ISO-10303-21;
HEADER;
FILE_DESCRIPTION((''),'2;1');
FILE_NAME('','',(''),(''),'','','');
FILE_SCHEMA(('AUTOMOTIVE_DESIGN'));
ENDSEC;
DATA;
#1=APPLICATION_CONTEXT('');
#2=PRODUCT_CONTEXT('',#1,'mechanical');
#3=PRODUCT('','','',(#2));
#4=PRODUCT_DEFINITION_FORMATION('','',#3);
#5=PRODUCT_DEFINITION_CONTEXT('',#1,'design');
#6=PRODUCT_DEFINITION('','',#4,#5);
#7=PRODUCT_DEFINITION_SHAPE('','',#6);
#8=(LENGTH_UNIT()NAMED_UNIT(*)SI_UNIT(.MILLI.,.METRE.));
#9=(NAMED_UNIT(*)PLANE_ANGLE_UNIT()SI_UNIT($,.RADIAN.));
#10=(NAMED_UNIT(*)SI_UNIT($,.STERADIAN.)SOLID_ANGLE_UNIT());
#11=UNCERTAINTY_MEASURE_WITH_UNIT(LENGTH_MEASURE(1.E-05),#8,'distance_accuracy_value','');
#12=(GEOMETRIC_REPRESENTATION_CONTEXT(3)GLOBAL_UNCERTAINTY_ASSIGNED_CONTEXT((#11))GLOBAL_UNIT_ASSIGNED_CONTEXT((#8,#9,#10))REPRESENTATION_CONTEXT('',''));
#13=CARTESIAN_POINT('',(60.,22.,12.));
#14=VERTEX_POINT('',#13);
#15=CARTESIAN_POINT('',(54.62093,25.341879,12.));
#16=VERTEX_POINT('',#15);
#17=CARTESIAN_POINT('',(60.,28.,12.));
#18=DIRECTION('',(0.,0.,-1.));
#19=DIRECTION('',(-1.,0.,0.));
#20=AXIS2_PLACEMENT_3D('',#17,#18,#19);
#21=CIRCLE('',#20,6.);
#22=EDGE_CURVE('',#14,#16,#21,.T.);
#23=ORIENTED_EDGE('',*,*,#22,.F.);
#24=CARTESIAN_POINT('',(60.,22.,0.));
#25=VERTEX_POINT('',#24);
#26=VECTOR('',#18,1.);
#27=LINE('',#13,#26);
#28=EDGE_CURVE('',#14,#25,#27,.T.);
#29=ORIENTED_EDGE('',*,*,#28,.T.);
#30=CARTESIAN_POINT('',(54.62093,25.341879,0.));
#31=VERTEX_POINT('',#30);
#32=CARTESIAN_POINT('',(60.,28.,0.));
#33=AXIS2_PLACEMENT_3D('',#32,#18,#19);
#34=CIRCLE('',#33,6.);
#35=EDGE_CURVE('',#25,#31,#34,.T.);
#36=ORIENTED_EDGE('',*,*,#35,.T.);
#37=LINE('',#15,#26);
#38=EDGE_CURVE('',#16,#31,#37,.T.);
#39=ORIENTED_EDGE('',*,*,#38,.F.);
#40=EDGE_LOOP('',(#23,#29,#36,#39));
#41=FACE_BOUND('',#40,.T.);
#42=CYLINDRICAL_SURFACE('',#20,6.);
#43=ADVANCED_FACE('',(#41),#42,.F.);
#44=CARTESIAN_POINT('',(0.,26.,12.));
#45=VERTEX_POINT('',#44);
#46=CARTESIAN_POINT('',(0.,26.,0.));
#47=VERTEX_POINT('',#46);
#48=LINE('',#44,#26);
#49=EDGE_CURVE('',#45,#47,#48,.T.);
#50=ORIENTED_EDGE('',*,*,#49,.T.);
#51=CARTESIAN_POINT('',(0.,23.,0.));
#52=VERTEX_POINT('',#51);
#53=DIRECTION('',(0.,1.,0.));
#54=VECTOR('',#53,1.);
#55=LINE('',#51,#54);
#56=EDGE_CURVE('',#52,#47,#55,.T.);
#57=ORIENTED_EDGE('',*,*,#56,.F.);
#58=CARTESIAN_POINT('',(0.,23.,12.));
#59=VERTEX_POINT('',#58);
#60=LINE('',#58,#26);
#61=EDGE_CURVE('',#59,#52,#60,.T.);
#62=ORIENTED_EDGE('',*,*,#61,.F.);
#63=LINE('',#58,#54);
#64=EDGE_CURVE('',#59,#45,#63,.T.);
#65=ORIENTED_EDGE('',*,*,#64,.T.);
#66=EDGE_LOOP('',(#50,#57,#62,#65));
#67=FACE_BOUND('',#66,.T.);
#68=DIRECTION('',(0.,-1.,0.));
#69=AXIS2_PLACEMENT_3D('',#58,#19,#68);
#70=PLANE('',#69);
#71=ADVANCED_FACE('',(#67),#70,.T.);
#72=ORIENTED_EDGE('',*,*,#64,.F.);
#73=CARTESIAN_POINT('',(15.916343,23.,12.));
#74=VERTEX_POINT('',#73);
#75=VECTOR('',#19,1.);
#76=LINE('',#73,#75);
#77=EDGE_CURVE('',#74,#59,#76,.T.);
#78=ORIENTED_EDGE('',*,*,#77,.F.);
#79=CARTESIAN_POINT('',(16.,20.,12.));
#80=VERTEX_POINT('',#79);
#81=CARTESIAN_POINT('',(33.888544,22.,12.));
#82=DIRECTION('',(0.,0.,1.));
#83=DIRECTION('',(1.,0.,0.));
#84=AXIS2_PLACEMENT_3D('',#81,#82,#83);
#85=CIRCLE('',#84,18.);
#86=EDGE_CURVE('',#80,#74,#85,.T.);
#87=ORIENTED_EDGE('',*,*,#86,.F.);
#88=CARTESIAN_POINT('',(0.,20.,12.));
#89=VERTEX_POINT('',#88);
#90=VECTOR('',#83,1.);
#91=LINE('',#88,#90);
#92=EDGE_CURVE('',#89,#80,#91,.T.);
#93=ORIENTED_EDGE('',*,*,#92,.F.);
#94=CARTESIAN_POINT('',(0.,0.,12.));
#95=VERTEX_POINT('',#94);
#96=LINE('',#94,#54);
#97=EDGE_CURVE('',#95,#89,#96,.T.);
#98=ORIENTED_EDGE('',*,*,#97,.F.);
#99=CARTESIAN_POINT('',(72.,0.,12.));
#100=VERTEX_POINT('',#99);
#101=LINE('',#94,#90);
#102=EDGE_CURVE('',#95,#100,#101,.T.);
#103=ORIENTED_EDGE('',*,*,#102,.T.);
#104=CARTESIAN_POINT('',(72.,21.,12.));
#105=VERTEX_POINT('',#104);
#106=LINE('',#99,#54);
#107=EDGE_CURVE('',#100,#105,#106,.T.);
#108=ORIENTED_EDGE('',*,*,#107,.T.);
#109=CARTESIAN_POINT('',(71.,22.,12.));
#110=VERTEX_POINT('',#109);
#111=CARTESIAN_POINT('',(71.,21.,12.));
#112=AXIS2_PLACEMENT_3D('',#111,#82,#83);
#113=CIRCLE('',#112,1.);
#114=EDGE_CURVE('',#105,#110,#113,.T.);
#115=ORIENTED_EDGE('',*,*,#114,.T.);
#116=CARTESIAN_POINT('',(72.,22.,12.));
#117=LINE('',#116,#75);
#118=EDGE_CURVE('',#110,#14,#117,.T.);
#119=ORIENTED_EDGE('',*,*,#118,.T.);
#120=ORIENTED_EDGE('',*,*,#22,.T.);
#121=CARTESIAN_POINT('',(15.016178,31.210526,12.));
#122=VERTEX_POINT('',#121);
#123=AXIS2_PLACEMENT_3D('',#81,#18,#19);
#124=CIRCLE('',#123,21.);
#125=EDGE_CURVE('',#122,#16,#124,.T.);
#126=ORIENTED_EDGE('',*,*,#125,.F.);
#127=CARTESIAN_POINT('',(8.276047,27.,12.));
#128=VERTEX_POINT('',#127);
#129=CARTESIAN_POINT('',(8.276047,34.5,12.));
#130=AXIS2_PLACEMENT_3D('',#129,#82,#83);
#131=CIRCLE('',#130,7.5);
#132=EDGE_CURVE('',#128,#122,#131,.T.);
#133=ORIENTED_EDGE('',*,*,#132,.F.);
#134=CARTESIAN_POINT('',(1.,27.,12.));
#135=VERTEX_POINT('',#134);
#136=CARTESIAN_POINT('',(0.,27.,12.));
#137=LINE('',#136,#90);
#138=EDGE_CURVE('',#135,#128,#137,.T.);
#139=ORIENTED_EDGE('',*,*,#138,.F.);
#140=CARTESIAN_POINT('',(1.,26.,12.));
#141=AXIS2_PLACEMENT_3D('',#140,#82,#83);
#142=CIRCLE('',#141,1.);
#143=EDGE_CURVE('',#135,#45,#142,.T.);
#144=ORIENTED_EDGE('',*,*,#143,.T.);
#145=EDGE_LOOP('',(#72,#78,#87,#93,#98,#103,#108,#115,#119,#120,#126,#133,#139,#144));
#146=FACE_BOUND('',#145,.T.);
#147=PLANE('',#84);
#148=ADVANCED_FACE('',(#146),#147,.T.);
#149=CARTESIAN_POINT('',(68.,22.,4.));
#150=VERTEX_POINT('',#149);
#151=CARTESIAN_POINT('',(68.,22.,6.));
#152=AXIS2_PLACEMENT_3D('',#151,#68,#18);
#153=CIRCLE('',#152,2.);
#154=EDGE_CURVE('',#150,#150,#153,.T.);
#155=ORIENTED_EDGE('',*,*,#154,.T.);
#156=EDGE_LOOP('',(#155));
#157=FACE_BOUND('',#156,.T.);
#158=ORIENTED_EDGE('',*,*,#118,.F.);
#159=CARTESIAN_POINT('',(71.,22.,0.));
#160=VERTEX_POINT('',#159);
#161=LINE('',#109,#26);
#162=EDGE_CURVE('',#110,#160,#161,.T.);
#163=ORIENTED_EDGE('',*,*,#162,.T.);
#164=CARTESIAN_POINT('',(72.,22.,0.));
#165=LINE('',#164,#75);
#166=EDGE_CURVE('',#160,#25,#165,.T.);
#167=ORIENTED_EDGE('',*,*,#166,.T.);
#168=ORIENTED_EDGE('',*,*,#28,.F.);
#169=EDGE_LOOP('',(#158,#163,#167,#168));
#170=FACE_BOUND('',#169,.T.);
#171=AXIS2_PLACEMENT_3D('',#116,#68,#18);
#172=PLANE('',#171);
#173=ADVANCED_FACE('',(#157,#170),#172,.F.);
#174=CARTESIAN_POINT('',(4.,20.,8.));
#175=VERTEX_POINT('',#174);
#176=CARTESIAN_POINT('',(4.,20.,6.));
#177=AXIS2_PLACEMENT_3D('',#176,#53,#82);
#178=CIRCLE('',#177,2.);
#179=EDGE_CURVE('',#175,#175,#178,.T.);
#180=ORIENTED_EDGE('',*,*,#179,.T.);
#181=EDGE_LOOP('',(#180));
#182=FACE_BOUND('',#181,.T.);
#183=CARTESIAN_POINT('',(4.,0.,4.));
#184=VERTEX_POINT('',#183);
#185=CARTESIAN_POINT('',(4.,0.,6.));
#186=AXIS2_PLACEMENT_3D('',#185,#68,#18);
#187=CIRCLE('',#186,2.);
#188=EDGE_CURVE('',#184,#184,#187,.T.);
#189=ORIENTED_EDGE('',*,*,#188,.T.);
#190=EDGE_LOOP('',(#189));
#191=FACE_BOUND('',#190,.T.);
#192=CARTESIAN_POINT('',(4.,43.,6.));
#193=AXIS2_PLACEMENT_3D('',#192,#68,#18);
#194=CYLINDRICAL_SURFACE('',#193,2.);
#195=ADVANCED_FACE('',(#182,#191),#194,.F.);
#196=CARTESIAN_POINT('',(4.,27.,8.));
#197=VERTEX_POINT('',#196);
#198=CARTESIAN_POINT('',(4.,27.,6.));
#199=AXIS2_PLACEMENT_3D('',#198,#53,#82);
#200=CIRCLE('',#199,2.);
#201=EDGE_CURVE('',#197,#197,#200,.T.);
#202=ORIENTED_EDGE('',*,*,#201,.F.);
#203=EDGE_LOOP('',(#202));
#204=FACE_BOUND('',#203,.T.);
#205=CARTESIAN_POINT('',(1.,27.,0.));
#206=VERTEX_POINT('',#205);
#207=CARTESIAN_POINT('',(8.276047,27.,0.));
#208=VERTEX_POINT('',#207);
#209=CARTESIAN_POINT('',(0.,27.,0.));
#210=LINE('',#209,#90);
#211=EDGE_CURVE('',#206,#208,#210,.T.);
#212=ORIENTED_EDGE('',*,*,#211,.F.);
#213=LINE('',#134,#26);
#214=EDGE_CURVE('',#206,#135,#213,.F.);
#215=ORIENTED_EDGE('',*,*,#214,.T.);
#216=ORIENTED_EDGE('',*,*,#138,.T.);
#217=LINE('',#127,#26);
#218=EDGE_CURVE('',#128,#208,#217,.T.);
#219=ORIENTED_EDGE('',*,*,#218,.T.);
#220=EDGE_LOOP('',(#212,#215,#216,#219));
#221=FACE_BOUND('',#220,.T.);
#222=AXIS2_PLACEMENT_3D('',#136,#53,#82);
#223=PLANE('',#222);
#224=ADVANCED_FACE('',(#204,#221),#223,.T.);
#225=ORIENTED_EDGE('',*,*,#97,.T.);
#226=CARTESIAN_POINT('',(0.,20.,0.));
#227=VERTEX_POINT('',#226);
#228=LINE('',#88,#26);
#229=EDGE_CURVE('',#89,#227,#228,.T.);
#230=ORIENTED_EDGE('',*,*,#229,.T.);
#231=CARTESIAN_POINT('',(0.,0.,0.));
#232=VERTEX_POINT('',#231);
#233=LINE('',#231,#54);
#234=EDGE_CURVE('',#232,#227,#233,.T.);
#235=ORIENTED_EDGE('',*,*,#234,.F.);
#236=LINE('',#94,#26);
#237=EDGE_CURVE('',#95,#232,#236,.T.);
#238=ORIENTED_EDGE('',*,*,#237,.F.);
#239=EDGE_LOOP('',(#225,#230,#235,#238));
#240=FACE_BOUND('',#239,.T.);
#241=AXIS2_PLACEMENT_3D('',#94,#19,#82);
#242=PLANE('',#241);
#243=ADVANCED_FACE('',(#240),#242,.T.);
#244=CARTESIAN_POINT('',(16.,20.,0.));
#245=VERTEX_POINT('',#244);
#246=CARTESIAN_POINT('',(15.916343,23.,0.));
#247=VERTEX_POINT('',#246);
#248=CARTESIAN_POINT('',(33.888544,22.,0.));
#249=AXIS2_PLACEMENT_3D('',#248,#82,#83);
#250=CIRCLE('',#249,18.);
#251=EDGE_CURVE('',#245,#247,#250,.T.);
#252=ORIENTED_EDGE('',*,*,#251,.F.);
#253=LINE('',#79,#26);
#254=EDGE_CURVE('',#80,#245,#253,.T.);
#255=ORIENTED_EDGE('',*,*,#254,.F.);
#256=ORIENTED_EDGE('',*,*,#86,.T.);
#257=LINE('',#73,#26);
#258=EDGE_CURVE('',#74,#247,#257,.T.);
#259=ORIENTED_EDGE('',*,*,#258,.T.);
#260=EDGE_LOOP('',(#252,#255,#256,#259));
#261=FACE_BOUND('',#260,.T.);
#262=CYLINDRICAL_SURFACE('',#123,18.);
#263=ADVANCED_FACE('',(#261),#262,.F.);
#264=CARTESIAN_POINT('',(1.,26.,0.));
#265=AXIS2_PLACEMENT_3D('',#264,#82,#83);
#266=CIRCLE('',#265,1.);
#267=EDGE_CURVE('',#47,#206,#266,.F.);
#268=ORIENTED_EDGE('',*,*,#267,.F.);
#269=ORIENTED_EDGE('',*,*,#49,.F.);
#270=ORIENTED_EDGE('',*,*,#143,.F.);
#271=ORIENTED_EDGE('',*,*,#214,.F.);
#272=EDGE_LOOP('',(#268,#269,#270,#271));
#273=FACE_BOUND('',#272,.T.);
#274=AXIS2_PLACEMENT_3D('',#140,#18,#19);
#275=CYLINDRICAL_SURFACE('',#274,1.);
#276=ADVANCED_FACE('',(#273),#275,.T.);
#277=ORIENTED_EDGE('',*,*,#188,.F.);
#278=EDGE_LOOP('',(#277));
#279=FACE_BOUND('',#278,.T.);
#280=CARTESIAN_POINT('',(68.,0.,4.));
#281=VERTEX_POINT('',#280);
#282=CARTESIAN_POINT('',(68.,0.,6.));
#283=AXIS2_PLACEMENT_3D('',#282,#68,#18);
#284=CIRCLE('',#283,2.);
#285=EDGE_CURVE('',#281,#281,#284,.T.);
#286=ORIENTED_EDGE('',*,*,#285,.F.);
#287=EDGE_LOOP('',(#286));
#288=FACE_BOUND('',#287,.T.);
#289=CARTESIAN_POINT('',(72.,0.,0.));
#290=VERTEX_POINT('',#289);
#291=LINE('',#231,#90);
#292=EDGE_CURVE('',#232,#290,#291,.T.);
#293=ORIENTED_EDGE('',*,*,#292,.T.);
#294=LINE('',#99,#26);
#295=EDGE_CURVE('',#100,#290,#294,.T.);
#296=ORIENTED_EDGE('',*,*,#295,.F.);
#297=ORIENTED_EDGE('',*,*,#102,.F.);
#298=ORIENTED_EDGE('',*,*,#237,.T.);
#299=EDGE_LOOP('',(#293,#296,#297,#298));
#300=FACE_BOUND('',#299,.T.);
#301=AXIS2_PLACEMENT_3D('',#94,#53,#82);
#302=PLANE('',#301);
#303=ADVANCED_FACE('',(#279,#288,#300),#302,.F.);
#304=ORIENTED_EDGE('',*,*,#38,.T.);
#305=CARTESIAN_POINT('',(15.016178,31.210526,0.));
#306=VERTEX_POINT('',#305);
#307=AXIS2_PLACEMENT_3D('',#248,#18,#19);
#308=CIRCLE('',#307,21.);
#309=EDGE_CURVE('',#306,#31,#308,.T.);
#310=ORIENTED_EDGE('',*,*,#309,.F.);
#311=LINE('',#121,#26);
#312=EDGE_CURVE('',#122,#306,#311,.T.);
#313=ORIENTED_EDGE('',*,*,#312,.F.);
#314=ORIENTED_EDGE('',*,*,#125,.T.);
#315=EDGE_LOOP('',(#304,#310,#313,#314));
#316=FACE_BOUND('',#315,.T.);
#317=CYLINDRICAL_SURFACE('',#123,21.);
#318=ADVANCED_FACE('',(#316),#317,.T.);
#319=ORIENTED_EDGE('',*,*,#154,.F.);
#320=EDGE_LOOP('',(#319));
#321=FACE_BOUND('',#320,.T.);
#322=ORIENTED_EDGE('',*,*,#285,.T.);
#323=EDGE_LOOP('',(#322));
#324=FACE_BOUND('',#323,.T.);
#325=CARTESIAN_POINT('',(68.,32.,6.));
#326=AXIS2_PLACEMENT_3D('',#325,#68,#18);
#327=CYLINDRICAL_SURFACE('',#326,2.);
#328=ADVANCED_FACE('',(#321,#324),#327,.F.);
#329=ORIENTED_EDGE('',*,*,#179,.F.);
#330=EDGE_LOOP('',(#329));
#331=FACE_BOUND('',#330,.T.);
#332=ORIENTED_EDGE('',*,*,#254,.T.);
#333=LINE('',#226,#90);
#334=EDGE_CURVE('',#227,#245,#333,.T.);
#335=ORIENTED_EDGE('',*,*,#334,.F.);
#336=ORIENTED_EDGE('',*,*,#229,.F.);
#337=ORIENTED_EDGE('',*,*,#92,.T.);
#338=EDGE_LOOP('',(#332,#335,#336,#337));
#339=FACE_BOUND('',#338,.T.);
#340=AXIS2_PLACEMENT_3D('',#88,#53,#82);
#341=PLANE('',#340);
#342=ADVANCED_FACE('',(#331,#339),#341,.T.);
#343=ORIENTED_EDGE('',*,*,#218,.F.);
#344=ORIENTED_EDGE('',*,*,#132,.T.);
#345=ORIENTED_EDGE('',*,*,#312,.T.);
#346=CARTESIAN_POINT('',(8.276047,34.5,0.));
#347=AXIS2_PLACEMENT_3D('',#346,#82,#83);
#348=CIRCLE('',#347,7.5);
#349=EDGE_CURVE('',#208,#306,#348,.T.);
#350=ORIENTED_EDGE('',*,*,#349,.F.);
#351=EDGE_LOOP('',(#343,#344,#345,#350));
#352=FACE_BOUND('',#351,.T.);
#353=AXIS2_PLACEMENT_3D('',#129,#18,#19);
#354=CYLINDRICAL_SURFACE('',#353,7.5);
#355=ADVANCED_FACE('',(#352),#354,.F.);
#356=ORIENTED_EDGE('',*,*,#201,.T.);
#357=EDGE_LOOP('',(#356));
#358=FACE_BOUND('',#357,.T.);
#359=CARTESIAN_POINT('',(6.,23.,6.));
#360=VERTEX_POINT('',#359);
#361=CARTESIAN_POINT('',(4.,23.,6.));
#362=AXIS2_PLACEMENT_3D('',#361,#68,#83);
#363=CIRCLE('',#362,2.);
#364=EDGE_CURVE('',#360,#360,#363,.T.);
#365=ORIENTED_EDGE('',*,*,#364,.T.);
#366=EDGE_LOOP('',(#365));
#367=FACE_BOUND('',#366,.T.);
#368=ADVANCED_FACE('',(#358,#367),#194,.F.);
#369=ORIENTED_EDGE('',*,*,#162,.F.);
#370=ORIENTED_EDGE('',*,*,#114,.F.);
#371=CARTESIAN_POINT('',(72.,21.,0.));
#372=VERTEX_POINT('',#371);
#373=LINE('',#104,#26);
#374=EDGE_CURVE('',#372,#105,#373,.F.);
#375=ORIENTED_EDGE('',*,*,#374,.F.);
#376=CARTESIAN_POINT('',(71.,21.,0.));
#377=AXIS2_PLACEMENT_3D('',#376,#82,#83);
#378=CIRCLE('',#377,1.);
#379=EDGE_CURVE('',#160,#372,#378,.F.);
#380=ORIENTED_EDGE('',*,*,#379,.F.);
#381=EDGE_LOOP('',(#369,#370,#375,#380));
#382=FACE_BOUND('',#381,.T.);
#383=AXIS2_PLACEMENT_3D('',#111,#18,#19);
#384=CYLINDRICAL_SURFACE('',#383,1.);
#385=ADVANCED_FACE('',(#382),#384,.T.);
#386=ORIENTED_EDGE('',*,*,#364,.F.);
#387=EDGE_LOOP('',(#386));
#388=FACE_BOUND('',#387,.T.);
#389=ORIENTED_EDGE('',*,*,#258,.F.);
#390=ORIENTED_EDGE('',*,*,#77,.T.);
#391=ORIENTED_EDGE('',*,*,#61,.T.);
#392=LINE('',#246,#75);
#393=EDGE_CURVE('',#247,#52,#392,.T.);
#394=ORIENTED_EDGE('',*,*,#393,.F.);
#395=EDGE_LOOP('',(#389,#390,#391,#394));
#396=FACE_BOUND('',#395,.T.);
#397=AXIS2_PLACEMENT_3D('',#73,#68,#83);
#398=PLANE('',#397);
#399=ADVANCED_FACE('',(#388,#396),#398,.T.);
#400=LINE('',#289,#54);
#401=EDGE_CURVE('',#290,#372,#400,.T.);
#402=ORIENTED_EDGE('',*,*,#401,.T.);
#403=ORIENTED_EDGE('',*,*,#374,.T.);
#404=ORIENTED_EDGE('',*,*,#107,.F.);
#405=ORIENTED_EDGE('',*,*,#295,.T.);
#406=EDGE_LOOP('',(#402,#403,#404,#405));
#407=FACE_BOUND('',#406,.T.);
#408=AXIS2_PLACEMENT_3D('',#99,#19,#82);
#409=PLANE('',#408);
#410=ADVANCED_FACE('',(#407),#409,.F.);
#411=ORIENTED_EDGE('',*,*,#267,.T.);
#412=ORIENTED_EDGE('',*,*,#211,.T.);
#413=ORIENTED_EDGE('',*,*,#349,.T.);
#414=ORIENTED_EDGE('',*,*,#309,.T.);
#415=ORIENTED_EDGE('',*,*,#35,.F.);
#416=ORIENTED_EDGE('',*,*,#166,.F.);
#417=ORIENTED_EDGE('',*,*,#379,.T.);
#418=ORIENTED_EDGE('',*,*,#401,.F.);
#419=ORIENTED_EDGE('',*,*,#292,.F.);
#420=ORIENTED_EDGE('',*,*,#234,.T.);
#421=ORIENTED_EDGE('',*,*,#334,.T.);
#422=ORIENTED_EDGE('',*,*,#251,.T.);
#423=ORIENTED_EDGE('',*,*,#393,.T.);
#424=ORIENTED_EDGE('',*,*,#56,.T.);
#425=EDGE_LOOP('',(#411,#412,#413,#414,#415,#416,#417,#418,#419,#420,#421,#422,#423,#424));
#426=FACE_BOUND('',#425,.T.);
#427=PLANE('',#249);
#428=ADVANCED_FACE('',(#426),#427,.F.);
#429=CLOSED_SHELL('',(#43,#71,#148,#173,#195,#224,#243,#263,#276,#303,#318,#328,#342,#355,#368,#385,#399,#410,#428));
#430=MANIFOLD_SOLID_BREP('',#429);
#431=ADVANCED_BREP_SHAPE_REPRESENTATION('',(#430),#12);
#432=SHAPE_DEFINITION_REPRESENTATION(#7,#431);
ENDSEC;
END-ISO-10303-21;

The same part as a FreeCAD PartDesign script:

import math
import FreeCAD as App
import Part
import Sketcher
Q = App.Units.Quantity


def edges_at(feature, points):
    """Names of the edges that pass closest to the given points."""
    edges = feature.Shape.Edges
    near = lambda p: min(range(len(edges)), key=lambda i: edges[i].distToShape(Part.Vertex(*p))[0])
    return sorted({f"Edge{near(p) + 1}" for p in points})

doc = App.newDocument("Part")
body = doc.addObject("PartDesign::Body", "Body")

# Sketch on XY plane
sketch1 = body.newObject("Sketcher::SketchObject", "Sketch")
sketch1.AttachmentSupport = (doc.getObject("XY_Plane"), [""])
sketch1.MapMode = "FlatFace"
sketch1.addGeometry([
    Part.LineSegment(App.Vector(0, 0, 0), App.Vector(72, 0, 0)),  # 0
    Part.LineSegment(App.Vector(72, 0, 0), App.Vector(72, 22, 0)),  # 1
    Part.LineSegment(App.Vector(72, 22, 0), App.Vector(60, 22, 0)),  # 2
    Part.ArcOfCircle(Part.Circle(App.Vector(60, 28, 0), App.Vector(0, 0, 1), 6), math.radians(-154), math.radians(-90)),  # 3
    Part.ArcOfCircle(Part.Circle(App.Vector(33.9, 22, 0), App.Vector(0, 0, 1), 21), math.radians(9), math.radians(154)),  # 4
    Part.ArcOfCircle(Part.Circle(App.Vector(8.3, 34.5, 0), App.Vector(0, 0, 1), 7.5), math.radians(-90), math.radians(-26)),  # 5
    Part.LineSegment(App.Vector(8.3, 27, 0), App.Vector(0, 27, 0)),  # 6
    Part.LineSegment(App.Vector(0, 27, 0), App.Vector(0, 23, 0)),  # 7
    Part.LineSegment(App.Vector(0, 23, 0), App.Vector(15.9, 23, 0)),  # 8
    Part.ArcOfCircle(Part.Circle(App.Vector(33.9, 22, 0), App.Vector(0, 0, 1), 18), math.radians(-174), math.radians(177)),  # 9
    Part.LineSegment(App.Vector(16, 20, 0), App.Vector(0, 20, 0)),  # 10
    Part.LineSegment(App.Vector(0, 20, 0), App.Vector(0, 0, 0)),  # 11
], False)
sketch1.addConstraint([
    Sketcher.Constraint("Coincident", 0, 2, 1, 1),
    Sketcher.Constraint("Coincident", 1, 2, 2, 1),
    Sketcher.Constraint("Tangent", 2, 2, 3, 2),
    Sketcher.Constraint("Coincident", 3, 1, 4, 1),
    Sketcher.Constraint("Tangent", 4, 2, 5, 2),
    Sketcher.Constraint("Tangent", 5, 1, 6, 1),
    Sketcher.Constraint("Coincident", 6, 2, 7, 1),
    Sketcher.Constraint("Coincident", 7, 2, 8, 1),
    Sketcher.Constraint("Coincident", 8, 2, 9, 2),
    Sketcher.Constraint("Coincident", 9, 1, 10, 1),
    Sketcher.Constraint("Coincident", 10, 2, 11, 1),
    Sketcher.Constraint("Coincident", 11, 2, 0, 1),
    Sketcher.Constraint("Horizontal", 0),
    Sketcher.Constraint("Vertical", 1),
    Sketcher.Constraint("Horizontal", 2),
    Sketcher.Constraint("Horizontal", 6),
    Sketcher.Constraint("Vertical", 7),
    Sketcher.Constraint("Horizontal", 8),
    Sketcher.Constraint("Horizontal", 10),
    Sketcher.Constraint("Vertical", 11),
    Sketcher.Constraint("Coincident", 11, 2, -1, 1),
    Sketcher.Constraint("Coincident", 9, 3, 4, 3),
    Sketcher.Constraint("PointOnObject", 6, 2, -2),
    Sketcher.Constraint("Horizontal", 9, 3, 1, 2),
    Sketcher.Constraint("Radius", 3, Q("6 mm")),
    Sketcher.Constraint("Radius", 4, Q("21 mm")),
    Sketcher.Constraint("Radius", 9, Q("18 mm")),
    Sketcher.Constraint("Radius", 5, Q("7.5 mm")),
    Sketcher.Constraint("DistanceX", 0, 1, 0, 2, Q("72 mm")),
    Sketcher.Constraint("DistanceX", 2, 2, 2, 1, Q("12 mm")),
    Sketcher.Constraint("DistanceX", 10, 2, 10, 1, Q("16 mm")),
    Sketcher.Constraint("DistanceY", 1, 1, 1, 2, Q("22 mm")),
    Sketcher.Constraint("DistanceY", 7, 2, 7, 1, Q("4 mm")),
    Sketcher.Constraint("DistanceY", 11, 2, 11, 1, Q("20 mm")),
    Sketcher.Constraint("DistanceY", -1, 1, 5, 1, Q("27 mm")),
])
pad1 = body.newObject("PartDesign::Pad", "Pad")
pad1.Profile = sketch1
pad1.Length = 12

# Sketch on XZ plane
sketch2 = body.newObject("Sketcher::SketchObject", "Sketch001")
sketch2.AttachmentSupport = (doc.getObject("XZ_Plane"), [""])
sketch2.MapMode = "FlatFace"
sketch2.addGeometry(Part.Circle(App.Vector(4, 6, 0), App.Vector(0, 0, 1), 2), False)
sketch2.addConstraint([
    Sketcher.Constraint("Diameter", 0, Q("4 mm")),
    Sketcher.Constraint("DistanceX", -1, 1, 0, 3, Q("4 mm")),
    Sketcher.Constraint("DistanceY", -1, 1, 0, 3, Q("6 mm")),
])
pocket1 = body.newObject("PartDesign::Pocket", "Pocket")
pocket1.Profile = sketch2
pocket1.Type = "ThroughAll"

# Sketch on XZ plane
sketch3 = body.newObject("Sketcher::SketchObject", "Sketch002")
sketch3.AttachmentSupport = (doc.getObject("XZ_Plane"), [""])
sketch3.MapMode = "FlatFace"
sketch3.addGeometry([
    Part.Circle(App.Vector(4, 6, 0), App.Vector(0, 0, 1), 2),
    Part.Circle(App.Vector(68, 6, 0), App.Vector(0, 0, 1), 2),
], False)
sketch3.addConstraint([
    Sketcher.Constraint("Equal", 0, 1),
    Sketcher.Constraint("Horizontal", 0, 3, 1, 3),
    Sketcher.Constraint("Diameter", 0, Q("4 mm")),
    Sketcher.Constraint("DistanceX", -1, 1, 0, 3, Q("4 mm")),
    Sketcher.Constraint("DistanceY", -1, 1, 0, 3, Q("6 mm")),
    Sketcher.Constraint("DistanceX", -1, 1, 1, 3, Q("68 mm")),
])
pocket2 = body.newObject("PartDesign::Pocket", "Pocket001")
pocket2.Profile = sketch3
pocket2.Length = 32
doc.recompute()

fillet = body.newObject("PartDesign::Fillet", "Fillet")
fillet.Base = (pocket2, edges_at(pocket2, [(72, 22, 6), (0, 27, 6)]))
fillet.Radius = 1

doc.recompute()
